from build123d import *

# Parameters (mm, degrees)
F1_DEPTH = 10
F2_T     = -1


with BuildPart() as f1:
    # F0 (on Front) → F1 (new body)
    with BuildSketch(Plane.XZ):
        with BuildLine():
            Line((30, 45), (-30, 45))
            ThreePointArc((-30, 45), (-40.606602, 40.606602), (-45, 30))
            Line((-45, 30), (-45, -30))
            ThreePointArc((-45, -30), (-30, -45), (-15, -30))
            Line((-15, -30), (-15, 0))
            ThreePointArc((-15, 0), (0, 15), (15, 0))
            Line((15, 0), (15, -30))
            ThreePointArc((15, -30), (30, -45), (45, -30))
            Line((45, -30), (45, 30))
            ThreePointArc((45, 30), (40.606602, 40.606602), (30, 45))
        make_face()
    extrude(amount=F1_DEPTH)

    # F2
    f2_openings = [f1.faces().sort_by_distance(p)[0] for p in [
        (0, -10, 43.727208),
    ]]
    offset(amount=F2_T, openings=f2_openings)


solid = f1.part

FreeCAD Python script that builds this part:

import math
import FreeCAD as App
import Part
import Sketcher
from FreeCAD import Vector


def faces_at(feature, points):
    """Names of the faces that lie closest to the given points."""
    faces = feature.Shape.Faces
    near = lambda p: min(range(len(faces)), key=lambda i: faces[i].distToShape(Part.Vertex(*p))[0])
    return sorted({f"Face{near(p) + 1}" for p in points})

doc = App.newDocument("Part")
body = doc.addObject("PartDesign::Body", "Body")

sketch1 = body.newObject("Sketcher::SketchObject", "Sketch")
sketch1.AttachmentSupport = (doc.getObject("XZ_Plane"), [""])
sketch1.MapMode = "FlatFace"
sketch1.addGeometry([
    Part.LineSegment(Vector(30, 45, 0), Vector(-30, 45, 0)),
    Part.ArcOfCircle(Part.Circle(Vector(-30, 30, 0), Vector(0, 0, 1), 15), math.radians(90), math.radians(180)),
    Part.LineSegment(Vector(-45, 30, 0), Vector(-45, -30, 0)),
    Part.ArcOfCircle(Part.Circle(Vector(-30, -30, 0), Vector(0, 0, 1), 15), math.radians(180), math.radians(360)),
    Part.LineSegment(Vector(-15, -30, 0), Vector(-15, 0, 0)),
    Part.ArcOfCircle(Part.Circle(Vector(0, 0, 0), Vector(0, 0, 1), 15), math.radians(0), math.radians(180)),
    Part.LineSegment(Vector(15, 0, 0), Vector(15, -30, 0)),
    Part.ArcOfCircle(Part.Circle(Vector(30, -30, 0), Vector(0, 0, 1), 15), math.radians(180), math.radians(360)),
    Part.LineSegment(Vector(45, -30, 0), Vector(45, 30, 0)),
    Part.ArcOfCircle(Part.Circle(Vector(30, 30, 0), Vector(0, 0, 1), 15), math.radians(0), math.radians(90)),
], False)
sketch1.addConstraint([
    Sketcher.Constraint("Tangent", 0, 2, 1, 1),
    Sketcher.Constraint("Tangent", 1, 2, 2, 1),
    Sketcher.Constraint("Tangent", 2, 2, 3, 1),
    Sketcher.Constraint("Tangent", 3, 2, 4, 1),
    Sketcher.Constraint("Tangent", 4, 2, 5, 2),
    Sketcher.Constraint("Tangent", 5, 1, 6, 1),
    Sketcher.Constraint("Tangent", 6, 2, 7, 1),
    Sketcher.Constraint("Tangent", 7, 2, 8, 1),
    Sketcher.Constraint("Tangent", 8, 2, 9, 1),
    Sketcher.Constraint("Tangent", 9, 2, 0, 1),
    Sketcher.Constraint("Horizontal", 0),
    Sketcher.Constraint("Vertical", 2),
    Sketcher.Constraint("Vertical", 4),
    Sketcher.Constraint("Vertical", 6),
    Sketcher.Constraint("Vertical", 8),
    Sketcher.Constraint("Coincident", 5, 3, -1, 1),
    Sketcher.Constraint("Equal", 1, 3),
    Sketcher.Constraint("Equal", 3, 5),
    Sketcher.Constraint("Equal", 5, 7),
    Sketcher.Constraint("Equal", 7, 9),
    Sketcher.Constraint("Horizontal", 3, 3, 7, 3),
    Sketcher.Constraint("Equal", 0, 2),
    Sketcher.Constraint("Radius", 1, 14.999999),
    Sketcher.Constraint("DistanceY", 4, 1, 4, 2, 30.0),
])
pad1 = body.newObject("PartDesign::Pad", "Pad")
pad1.Profile = sketch1
pad1.Length = 10
doc.recompute()

thickness = body.newObject("PartDesign::Thickness", "Thickness")
thickness.Base = (pad1, faces_at(pad1, [(-18, -10, -18)]))
thickness.Value = 1
thickness.Reversed = True
thickness.Join = "Arc"

doc.recompute()
